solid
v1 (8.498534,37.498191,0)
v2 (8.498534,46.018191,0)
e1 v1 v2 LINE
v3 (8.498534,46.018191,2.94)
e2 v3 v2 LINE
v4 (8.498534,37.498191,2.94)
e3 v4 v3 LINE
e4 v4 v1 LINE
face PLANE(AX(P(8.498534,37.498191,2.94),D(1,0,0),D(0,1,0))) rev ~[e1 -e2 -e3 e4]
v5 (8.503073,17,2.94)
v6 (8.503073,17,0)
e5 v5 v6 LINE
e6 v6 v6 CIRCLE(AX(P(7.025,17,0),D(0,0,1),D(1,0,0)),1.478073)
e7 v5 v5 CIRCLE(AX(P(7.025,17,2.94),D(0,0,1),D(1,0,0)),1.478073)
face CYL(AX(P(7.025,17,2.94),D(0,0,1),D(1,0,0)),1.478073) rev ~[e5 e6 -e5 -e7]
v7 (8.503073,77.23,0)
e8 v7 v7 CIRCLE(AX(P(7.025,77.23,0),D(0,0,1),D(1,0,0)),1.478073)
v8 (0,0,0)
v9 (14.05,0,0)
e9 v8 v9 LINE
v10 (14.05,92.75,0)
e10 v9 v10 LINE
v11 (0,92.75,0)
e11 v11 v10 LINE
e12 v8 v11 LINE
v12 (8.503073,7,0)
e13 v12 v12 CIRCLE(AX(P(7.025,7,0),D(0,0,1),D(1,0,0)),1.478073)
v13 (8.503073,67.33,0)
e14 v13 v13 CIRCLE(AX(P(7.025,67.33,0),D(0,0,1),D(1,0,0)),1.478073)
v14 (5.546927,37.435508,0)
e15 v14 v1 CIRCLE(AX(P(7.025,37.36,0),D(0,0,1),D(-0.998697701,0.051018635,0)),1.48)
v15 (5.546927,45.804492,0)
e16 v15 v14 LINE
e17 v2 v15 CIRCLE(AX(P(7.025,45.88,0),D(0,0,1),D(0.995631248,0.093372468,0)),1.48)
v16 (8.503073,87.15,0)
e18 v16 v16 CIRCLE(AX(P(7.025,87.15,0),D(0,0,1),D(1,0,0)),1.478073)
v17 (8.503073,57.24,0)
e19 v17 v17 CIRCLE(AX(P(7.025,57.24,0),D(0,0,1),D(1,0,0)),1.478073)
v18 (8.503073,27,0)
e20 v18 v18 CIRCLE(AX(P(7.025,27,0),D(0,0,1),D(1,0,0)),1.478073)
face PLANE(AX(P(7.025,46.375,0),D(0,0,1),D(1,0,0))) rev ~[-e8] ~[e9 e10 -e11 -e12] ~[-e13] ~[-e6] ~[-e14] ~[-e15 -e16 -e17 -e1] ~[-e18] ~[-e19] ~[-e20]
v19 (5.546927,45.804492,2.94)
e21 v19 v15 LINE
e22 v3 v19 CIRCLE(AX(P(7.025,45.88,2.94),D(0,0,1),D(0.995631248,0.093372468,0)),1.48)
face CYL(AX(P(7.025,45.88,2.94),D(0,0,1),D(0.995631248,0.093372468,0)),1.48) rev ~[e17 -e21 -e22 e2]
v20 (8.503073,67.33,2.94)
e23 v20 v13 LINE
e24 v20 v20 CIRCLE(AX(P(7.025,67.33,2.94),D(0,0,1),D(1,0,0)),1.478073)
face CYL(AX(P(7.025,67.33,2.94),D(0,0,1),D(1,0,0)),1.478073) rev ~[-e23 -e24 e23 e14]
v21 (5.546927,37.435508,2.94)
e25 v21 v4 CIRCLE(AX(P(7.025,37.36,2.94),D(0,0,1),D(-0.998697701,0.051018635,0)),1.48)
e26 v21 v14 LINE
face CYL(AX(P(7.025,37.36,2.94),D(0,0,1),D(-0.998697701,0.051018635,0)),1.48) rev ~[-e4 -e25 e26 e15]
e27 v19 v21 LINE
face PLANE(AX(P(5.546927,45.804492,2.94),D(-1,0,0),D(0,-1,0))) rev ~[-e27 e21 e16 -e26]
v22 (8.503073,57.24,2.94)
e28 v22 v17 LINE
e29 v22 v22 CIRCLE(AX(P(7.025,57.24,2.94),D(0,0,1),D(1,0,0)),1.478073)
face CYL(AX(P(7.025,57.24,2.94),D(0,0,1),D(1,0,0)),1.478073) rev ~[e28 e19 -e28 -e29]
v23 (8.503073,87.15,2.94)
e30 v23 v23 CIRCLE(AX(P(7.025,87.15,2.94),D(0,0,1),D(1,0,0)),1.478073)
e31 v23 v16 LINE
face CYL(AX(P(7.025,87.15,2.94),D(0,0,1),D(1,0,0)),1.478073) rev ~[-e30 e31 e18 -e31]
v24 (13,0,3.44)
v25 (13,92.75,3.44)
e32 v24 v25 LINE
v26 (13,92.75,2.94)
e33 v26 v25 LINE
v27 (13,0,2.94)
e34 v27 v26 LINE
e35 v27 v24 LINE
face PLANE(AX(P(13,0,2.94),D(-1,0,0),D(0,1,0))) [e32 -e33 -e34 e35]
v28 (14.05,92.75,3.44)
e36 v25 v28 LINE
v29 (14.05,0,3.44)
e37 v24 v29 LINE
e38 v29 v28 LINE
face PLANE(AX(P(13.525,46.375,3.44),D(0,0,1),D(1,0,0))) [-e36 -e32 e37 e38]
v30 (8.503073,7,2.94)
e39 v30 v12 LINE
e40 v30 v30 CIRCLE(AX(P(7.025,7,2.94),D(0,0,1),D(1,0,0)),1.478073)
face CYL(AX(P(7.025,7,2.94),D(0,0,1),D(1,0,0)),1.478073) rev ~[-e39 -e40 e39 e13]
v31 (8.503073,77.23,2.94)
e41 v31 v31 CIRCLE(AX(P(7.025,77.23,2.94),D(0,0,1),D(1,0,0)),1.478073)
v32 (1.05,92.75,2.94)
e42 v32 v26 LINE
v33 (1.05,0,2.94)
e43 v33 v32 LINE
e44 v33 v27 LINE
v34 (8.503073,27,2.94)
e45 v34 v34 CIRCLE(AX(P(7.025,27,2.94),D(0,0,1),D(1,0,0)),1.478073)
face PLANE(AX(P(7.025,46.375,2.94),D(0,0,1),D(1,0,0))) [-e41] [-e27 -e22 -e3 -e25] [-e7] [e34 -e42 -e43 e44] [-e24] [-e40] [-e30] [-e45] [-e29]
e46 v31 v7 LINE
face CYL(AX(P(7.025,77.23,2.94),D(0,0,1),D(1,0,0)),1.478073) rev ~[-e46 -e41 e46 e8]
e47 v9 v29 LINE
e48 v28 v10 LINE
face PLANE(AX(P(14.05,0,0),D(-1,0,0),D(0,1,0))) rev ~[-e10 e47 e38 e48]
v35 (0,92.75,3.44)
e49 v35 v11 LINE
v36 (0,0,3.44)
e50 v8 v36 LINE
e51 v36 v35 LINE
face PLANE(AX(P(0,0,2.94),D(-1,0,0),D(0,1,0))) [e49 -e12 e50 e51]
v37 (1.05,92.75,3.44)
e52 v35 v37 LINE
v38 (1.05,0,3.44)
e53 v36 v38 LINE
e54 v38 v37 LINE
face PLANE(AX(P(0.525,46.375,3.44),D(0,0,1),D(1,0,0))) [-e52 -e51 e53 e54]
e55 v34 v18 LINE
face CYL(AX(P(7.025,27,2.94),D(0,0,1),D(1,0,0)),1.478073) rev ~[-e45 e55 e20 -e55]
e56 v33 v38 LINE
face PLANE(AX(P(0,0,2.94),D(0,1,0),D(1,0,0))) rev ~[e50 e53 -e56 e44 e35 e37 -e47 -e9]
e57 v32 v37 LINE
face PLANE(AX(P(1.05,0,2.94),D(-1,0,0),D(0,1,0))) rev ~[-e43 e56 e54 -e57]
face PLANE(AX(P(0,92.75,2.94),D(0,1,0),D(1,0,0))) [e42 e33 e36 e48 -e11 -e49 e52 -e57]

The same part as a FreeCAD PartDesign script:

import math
import FreeCAD as App
import Part
import Sketcher
from FreeCAD import Vector


def add_polygon(sketch, points):
    """Adds a closed chain of lines whose ends are joined by coincident constraints."""
    first, n = sketch.GeometryCount, len(points)
    for a, b in zip(points, points[1:] + points[:1]):
        sketch.addGeometry(Part.LineSegment(App.Vector(*a, 0), App.Vector(*b, 0)), False)
    for i in range(n):
        sketch.addConstraint(Sketcher.Constraint("Coincident", first + i, 2, first + (i + 1) % n, 1))

doc = App.newDocument("Part")
body = doc.addObject("PartDesign::Body", "Body")

sketch1 = body.newObject("Sketcher::SketchObject", "Sketch")
sketch1.AttachmentSupport = (doc.getObject("XY_Plane"), [""])
sketch1.MapMode = "FlatFace"
add_polygon(sketch1, [(0, 93), (0, 0), (14, 0), (14, 93)])
sketch1.addConstraint([
    Sketcher.Constraint("Vertical", 0),
    Sketcher.Constraint("Horizontal", 1),
    Sketcher.Constraint("Vertical", 2),
    Sketcher.Constraint("Horizontal", 3),
    Sketcher.Constraint("Coincident", 0, 2, -1, 1),
    Sketcher.Constraint("DistanceX", 1, 1, 1, 2, 14.05),
    Sketcher.Constraint("DistanceY", 0, 2, 0, 1, 92.75),
])
pad1 = body.newObject("PartDesign::Pad", "Pad")
pad1.Profile = sketch1
pad1.Length = 2.94

sketch2 = body.newObject("Sketcher::SketchObject", "Sketch001")
sketch2.AttachmentSupport = (doc.getObject("XY_Plane"), [""])
sketch2.MapMode = "FlatFace"
sketch2.AttachmentOffset = App.Placement(Vector(0, 0, 2.94), App.Rotation())
add_polygon(sketch2, [(0, 92.8), (0, 0), (1.1, 0), (1.1, 92.8)])
add_polygon(sketch2, [(13, 92.8), (13, 0), (14.1, 0), (14.1, 92.8)])
sketch2.addConstraint([
    Sketcher.Constraint("Vertical", 0),
    Sketcher.Constraint("Horizontal", 1),
    Sketcher.Constraint("Vertical", 2),
    Sketcher.Constraint("Horizontal", 3),
    Sketcher.Constraint("Vertical", 4),
    Sketcher.Constraint("Horizontal", 5),
    Sketcher.Constraint("Vertical", 6),
    Sketcher.Constraint("Horizontal", 7),
    Sketcher.Constraint("Coincident", 0, 2, -1, 1),
    Sketcher.Constraint("PointOnObject", 4, 2, -1),
    Sketcher.Constraint("Horizontal", 3, 2, 6, 2),
    Sketcher.Constraint("Equal", 3, 5),
    Sketcher.Constraint("DistanceX", -1, 1, 4, 2, 13.0),
    Sketcher.Constraint("DistanceX", 1, 1, 1, 2, 1.05),
    Sketcher.Constraint("DistanceY", 0, 2, 0, 1, 92.75),
])
pad2 = body.newObject("PartDesign::Pad", "Pad001")
pad2.Profile = sketch2
pad2.Length = 0.5

sketch3 = body.newObject("Sketcher::SketchObject", "Sketch002")
sketch3.AttachmentSupport = (doc.getObject("XY_Plane"), [""])
sketch3.MapMode = "FlatFace"
sketch3.AttachmentOffset = App.Placement(Vector(0, 0, 2.94), App.Rotation())
sketch3.addGeometry([
    Part.LineSegment(Vector(5.5, 45.8, 0), Vector(5.5, 37.4, 0)),
    Part.ArcOfCircle(Part.Circle(Vector(7, 37.4, 0), Vector(0, 0, 1), 1.5), math.radians(177), math.radians(365)),
    Part.LineSegment(Vector(8.5, 37.5, 0), Vector(8.5, 46, 0)),
    Part.ArcOfCircle(Part.Circle(Vector(7, 45.9, 0), Vector(0, 0, 1), 1.5), math.radians(5), math.radians(183)),
    Part.Circle(Vector(7, 87.2, 0), Vector(0, 0, 1), 1.5),
    Part.Circle(Vector(7, 77.2, 0), Vector(0, 0, 1), 1.5),
    Part.Circle(Vector(7, 67.3, 0), Vector(0, 0, 1), 1.5),
    Part.Circle(Vector(7, 57.2, 0), Vector(0, 0, 1), 1.5),
    Part.Circle(Vector(7, 7, 0), Vector(0, 0, 1), 1.5),
    Part.Circle(Vector(7, 17, 0), Vector(0, 0, 1), 1.5),
    Part.Circle(Vector(7, 27, 0), Vector(0, 0, 1), 1.5),
], False)
sketch3.addConstraint([
    Sketcher.Constraint("Coincident", 0, 2, 1, 1),
    Sketcher.Constraint("Coincident", 1, 2, 2, 1),
    Sketcher.Constraint("Coincident", 2, 2, 3, 1),
    Sketcher.Constraint("Coincident", 3, 2, 0, 1),
    Sketcher.Constraint("Vertical", 0),
    Sketcher.Constraint("Vertical", 2),
    Sketcher.Constraint("Equal", 1, 3),
    Sketcher.Constraint("Equal", 4, 5),
    Sketcher.Constraint("Equal", 5, 6),
    Sketcher.Constraint("Equal", 6, 7),
    Sketcher.Constraint("Equal", 7, 8),
    Sketcher.Constraint("Equal", 8, 9),
    Sketcher.Constraint("Equal", 9, 10),
    Sketcher.Constraint("Vertical", 1, 3, 3, 3),
    Sketcher.Constraint("Vertical", 3, 3, 4, 3),
    Sketcher.Constraint("Vertical", 4, 3, 5, 3),
    Sketcher.Constraint("Vertical", 5, 3, 6, 3),
    Sketcher.Constraint("Vertical", 6, 3, 7, 3),
    Sketcher.Constraint("Vertical", 7, 3, 8, 3),
    Sketcher.Constraint("Vertical", 8, 3, 9, 3),
    Sketcher.Constraint("Vertical", 9, 3, 10, 3),
    Sketcher.Constraint("Radius", 1, 1.48),
    Sketcher.Constraint("DistanceY", -1, 1, 8, 3, 7.0),
    Sketcher.Constraint("DistanceY", -1, 1, 9, 3, 17.0),
    Sketcher.Constraint("DistanceY", -1, 1, 10, 3, 27.0),
    Sketcher.Constraint("DistanceY", 2, 1, 2, 2, 8.52),
    Sketcher.Constraint("DistanceY", 6, 3, 5, 3, 9.9),
    Sketcher.Constraint("DistanceY", -1, 1, 1, 3, 37.36),
    Sketcher.Constraint("DistanceY", -1, 1, 4, 3, 87.15),
    Sketcher.Constraint("DistanceY", -1, 1, 5, 3, 77.23),
    Sketcher.Constraint("DistanceY", -1, 1, 7, 3, 57.24),
    Sketcher.Constraint("Diameter", 4, 2.956146),
    Sketcher.Constraint("DistanceX", -1, 1, 1, 3, 7.025),
    Sketcher.Constraint("DistanceY", 3, 2, 2, 2, 0.213699),
    Sketcher.Constraint("DistanceY", 0, 2, 0, 1, 8.368984),
])
pocket1 = body.newObject("PartDesign::Pocket", "Pocket")
pocket1.Profile = sketch3
pocket1.Type = "ThroughAll"

doc.recompute()
